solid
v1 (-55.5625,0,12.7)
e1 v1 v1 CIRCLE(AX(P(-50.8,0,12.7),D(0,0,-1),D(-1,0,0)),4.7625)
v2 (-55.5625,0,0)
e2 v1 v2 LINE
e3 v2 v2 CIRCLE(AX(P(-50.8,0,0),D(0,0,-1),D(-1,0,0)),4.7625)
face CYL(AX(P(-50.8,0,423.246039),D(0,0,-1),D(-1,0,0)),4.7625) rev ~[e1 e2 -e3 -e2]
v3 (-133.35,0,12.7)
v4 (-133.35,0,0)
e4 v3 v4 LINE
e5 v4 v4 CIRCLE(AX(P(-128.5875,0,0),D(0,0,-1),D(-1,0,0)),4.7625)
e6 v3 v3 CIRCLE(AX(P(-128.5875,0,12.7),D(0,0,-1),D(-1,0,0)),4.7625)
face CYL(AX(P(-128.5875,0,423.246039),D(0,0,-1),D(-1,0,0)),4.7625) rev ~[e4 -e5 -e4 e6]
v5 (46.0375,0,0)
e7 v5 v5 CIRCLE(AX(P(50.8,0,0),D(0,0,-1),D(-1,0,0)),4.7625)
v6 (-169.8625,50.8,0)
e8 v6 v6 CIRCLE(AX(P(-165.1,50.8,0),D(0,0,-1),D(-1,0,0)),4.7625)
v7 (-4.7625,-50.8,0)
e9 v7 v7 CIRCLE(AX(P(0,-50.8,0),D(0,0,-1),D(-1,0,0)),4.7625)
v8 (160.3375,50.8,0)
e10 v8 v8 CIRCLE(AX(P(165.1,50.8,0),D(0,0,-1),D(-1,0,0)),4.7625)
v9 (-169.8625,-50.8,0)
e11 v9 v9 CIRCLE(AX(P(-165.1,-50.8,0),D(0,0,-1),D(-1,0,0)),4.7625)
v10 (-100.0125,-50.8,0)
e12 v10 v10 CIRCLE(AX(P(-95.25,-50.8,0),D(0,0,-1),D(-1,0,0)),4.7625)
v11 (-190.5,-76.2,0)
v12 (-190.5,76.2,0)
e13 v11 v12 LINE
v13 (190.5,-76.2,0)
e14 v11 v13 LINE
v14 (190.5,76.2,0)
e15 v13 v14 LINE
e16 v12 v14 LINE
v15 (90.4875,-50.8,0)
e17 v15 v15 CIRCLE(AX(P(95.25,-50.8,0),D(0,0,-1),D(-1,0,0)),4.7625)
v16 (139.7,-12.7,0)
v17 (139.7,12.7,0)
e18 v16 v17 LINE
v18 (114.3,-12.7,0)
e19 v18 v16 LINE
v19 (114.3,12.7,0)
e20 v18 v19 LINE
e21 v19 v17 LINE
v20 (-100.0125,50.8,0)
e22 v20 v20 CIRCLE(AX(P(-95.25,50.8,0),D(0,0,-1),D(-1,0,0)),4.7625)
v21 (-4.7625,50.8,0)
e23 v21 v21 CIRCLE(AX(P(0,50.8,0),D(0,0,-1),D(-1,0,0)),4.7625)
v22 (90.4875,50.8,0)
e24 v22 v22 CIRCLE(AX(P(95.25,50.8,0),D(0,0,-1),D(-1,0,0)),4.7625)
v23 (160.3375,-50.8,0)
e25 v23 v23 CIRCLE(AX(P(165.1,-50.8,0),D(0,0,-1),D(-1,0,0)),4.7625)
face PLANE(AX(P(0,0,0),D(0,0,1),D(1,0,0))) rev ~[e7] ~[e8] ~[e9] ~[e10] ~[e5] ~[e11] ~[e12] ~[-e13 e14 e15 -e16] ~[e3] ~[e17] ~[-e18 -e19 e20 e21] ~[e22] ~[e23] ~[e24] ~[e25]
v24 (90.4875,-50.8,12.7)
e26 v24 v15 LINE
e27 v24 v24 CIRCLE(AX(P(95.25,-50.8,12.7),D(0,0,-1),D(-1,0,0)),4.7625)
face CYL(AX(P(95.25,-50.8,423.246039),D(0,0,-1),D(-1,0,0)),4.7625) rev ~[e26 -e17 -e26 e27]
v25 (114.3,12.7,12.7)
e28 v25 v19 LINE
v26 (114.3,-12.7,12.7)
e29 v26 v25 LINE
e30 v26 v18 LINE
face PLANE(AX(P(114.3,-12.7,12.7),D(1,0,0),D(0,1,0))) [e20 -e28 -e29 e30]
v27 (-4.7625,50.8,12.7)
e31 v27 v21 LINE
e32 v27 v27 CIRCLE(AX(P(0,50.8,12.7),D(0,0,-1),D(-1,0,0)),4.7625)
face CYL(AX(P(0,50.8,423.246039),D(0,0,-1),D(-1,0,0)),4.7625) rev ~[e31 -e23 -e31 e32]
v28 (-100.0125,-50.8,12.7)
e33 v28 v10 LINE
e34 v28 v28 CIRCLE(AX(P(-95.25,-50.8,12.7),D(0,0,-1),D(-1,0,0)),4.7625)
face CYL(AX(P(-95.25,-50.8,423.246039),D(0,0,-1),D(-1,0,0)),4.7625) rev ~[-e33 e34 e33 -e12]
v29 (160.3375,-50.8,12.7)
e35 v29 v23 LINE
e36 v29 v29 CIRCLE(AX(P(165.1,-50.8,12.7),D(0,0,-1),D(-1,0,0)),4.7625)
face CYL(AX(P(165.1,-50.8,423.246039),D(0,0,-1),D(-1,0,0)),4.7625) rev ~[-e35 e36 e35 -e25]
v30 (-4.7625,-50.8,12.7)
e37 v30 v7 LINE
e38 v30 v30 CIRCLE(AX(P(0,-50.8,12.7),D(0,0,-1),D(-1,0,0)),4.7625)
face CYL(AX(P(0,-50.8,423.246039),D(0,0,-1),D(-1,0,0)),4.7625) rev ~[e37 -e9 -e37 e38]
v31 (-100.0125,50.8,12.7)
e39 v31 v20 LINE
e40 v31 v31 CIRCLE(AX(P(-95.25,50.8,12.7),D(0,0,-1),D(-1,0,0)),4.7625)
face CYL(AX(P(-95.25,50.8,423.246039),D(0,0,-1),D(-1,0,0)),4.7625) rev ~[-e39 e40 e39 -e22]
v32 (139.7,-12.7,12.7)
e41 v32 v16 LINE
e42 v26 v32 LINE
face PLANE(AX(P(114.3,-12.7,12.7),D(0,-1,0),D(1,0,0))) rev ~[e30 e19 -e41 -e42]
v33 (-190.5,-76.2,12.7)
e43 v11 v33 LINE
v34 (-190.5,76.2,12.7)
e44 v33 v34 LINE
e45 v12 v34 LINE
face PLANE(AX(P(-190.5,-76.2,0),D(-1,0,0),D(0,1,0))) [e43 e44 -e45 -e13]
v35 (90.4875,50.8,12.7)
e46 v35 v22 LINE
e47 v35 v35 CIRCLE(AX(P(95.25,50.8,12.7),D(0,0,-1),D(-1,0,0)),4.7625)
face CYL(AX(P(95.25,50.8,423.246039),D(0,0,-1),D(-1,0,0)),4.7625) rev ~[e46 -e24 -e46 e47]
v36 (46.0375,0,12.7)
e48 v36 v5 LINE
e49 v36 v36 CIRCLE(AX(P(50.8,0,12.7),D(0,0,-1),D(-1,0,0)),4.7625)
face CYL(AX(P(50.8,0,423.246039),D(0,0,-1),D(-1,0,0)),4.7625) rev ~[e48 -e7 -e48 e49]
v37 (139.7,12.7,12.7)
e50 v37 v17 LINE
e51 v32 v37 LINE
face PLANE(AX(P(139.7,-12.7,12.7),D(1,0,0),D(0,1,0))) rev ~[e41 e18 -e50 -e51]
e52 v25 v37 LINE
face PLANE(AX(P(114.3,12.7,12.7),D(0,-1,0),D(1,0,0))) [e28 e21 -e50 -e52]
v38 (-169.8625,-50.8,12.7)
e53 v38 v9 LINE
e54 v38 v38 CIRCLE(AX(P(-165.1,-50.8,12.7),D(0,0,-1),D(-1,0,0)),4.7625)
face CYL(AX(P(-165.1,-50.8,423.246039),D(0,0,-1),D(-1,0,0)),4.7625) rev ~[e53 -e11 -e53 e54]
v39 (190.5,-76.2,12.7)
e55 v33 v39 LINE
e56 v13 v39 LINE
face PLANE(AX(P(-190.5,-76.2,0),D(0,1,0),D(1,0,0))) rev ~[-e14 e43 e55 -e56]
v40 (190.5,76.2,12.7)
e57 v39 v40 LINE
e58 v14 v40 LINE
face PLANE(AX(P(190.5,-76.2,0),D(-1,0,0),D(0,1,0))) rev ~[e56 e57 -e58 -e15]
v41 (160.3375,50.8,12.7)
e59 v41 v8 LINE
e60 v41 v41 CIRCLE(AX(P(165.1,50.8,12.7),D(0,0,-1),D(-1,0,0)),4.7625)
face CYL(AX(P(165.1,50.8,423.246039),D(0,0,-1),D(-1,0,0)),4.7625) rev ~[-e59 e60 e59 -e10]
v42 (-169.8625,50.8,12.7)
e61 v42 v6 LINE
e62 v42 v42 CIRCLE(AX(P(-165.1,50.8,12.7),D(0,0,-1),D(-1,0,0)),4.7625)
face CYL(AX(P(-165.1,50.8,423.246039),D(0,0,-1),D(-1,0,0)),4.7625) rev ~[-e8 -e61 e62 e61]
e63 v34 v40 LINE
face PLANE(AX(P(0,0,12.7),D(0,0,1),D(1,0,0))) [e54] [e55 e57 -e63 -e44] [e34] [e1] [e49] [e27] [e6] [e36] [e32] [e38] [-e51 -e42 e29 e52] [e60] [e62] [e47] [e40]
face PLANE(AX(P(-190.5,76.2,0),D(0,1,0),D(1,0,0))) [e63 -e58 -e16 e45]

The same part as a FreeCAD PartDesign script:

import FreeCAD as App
import Part
import Sketcher
Q = App.Units.Quantity


def add_polygon(sketch, points):
    """Adds a closed chain of lines whose ends are joined by coincident constraints."""
    first, n = sketch.GeometryCount, len(points)
    for a, b in zip(points, points[1:] + points[:1]):
        sketch.addGeometry(Part.LineSegment(App.Vector(*a, 0), App.Vector(*b, 0)), False)
    for i in range(n):
        sketch.addConstraint(Sketcher.Constraint("Coincident", first + i, 2, first + (i + 1) % n, 1))

doc = App.newDocument("Part")
body = doc.addObject("PartDesign::Body", "Body")

# Sketch on XY plane
sketch1 = body.newObject("Sketcher::SketchObject", "Sketch")
sketch1.AttachmentSupport = (doc.getObject("XY_Plane"), [""])
sketch1.MapMode = "FlatFace"
add_polygon(sketch1, [(-190.5, 76.2), (-190.5, -76.2), (190.5, -76.2), (190.5, 76.2)])  # lines 0-3
sketch1.addConstraint(Sketcher.Constraint("Vertical", 0))
sketch1.addConstraint(Sketcher.Constraint("Horizontal", 1))
sketch1.addConstraint(Sketcher.Constraint("Vertical", 2))
sketch1.addConstraint(Sketcher.Constraint("Horizontal", 3))
sketch1.addConstraint(Sketcher.Constraint("Symmetric", 0, 2, 2, 2, -1, 1))
sketch1.addConstraint(Sketcher.Constraint("DistanceX", 1, 1, 1, 2, Q("15 in")))
sketch1.addConstraint(Sketcher.Constraint("DistanceY", 0, 2, 0, 1, Q("6 in")))
pad1 = body.newObject("PartDesign::Pad", "Pad")
pad1.Profile = sketch1
pad1.Length = Q("0.5 in")

# Sketch on XY plane
sketch2 = body.newObject("Sketcher::SketchObject", "Sketch001")
sketch2.AttachmentSupport = (doc.getObject("XY_Plane"), [""])
sketch2.MapMode = "FlatFace"
sketch2.AttachmentOffset = App.Placement(App.Vector(0, 0, 0.5 * 25.4), App.Rotation())
sketch2.addGeometry(Part.Circle(App.Vector(-165.1, 50.8, 0), App.Vector(0, 0, 1), 4.7625), False)
sketch2.addConstraint(Sketcher.Constraint("Diameter", 0, Q("0.375 in")))
sketch2.addConstraint(Sketcher.Constraint("DistanceY", -1, 1, 0, 3, Q("2 in")))
sketch2.addConstraint(Sketcher.Constraint("DistanceX", 0, 3, -1, 1, Q("6.5 in")))
doc.recompute()
hole = body.newObject("PartDesign::Hole", "Hole")
hole.Profile = sketch2
hole.ThreadType = "None"
hole.Diameter = Q("0.375 in")
hole.DepthType = "ThroughAll"

# Sketch on XY plane
sketch3 = body.newObject("Sketcher::SketchObject", "Sketch002")
sketch3.AttachmentSupport = (doc.getObject("XY_Plane"), [""])
sketch3.MapMode = "FlatFace"
sketch3.AttachmentOffset = App.Placement(App.Vector(0, 0, 0.5 * 25.4), App.Rotation())
sketch3.addGeometry(Part.Circle(App.Vector(-95.25, 50.8, 0), App.Vector(0, 0, 1), 4.7625), False)
sketch3.addGeometry(Part.Circle(App.Vector(0, 50.8, 0), App.Vector(0, 0, 1), 4.7625), False)
sketch3.addGeometry(Part.Circle(App.Vector(95.25, 50.8, 0), App.Vector(0, 0, 1), 4.7625), False)
sketch3.addGeometry(Part.Circle(App.Vector(165.1, 50.8, 0), App.Vector(0, 0, 1), 4.7625), False)
sketch3.addGeometry(Part.Circle(App.Vector(128.5875, 0, 0), App.Vector(0, 0, 1), 4.7625), False)
sketch3.addGeometry(Part.Circle(App.Vector(50.8, 0, 0), App.Vector(0, 0, 1), 4.7625), False)
sketch3.addGeometry(Part.Circle(App.Vector(-50.8, 0, 0), App.Vector(0, 0, 1), 4.7625), False)
sketch3.addGeometry(Part.Circle(App.Vector(-128.5875, 0, 0), App.Vector(0, 0, 1), 4.7625), False)
sketch3.addGeometry(Part.Circle(App.Vector(-165.1, -50.8, 0), App.Vector(0, 0, 1), 4.7625), False)
sketch3.addGeometry(Part.Circle(App.Vector(-95.25, -50.8, 0), App.Vector(0, 0, 1), 4.7625), False)
sketch3.addGeometry(Part.Circle(App.Vector(0, -50.8, 0), App.Vector(0, 0, 1), 4.7625), False)
sketch3.addGeometry(Part.Circle(App.Vector(95.25, -50.8, 0), App.Vector(0, 0, 1), 4.7625), False)
sketch3.addGeometry(Part.Circle(App.Vector(165.1, -50.8, 0), App.Vector(0, 0, 1), 4.7625), False)
sketch3.addConstraint(Sketcher.Constraint("Equal", 0, 1))
sketch3.addConstraint(Sketcher.Constraint("Equal", 1, 2))
sketch3.addConstraint(Sketcher.Constraint("Equal", 2, 3))
sketch3.addConstraint(Sketcher.Constraint("Equal", 3, 4))
sketch3.addConstraint(Sketcher.Constraint("Equal", 4, 5))
sketch3.addConstraint(Sketcher.Constraint("Equal", 5, 6))
sketch3.addConstraint(Sketcher.Constraint("Equal", 6, 7))
sketch3.addConstraint(Sketcher.Constraint("Equal", 7, 8))
sketch3.addConstraint(Sketcher.Constraint("Equal", 8, 9))
sketch3.addConstraint(Sketcher.Constraint("Equal", 9, 10))
sketch3.addConstraint(Sketcher.Constraint("Equal", 10, 11))
sketch3.addConstraint(Sketcher.Constraint("Equal", 11, 12))
sketch3.addConstraint(Sketcher.Constraint("Symmetric", 5, 3, 6, 3, -1, 1))
sketch3.addConstraint(Sketcher.Constraint("Symmetric", 4, 3, 7, 3, -1, 1))
sketch3.addConstraint(Sketcher.Constraint("Symmetric", 3, 3, 8, 3, -1, 1))
sketch3.addConstraint(Sketcher.Constraint("Symmetric", 2, 3, 9, 3, -1, 1))
sketch3.addConstraint(Sketcher.Constraint("Symmetric", 1, 3, 10, 3, -1, 1))
sketch3.addConstraint(Sketcher.Constraint("Symmetric", 0, 3, 11, 3, -1, 1))
sketch3.addConstraint(Sketcher.Constraint("Symmetric", 0, 3, 2, 3, -2))
sketch3.addConstraint(Sketcher.Constraint("Symmetric", 8, 3, 12, 3, -2))
sketch3.addConstraint(Sketcher.Constraint("PointOnObject", 1, 3, -2))
sketch3.addConstraint(Sketcher.Constraint("PointOnObject", 4, 3, -1))
sketch3.addConstraint(Sketcher.Constraint("PointOnObject", 5, 3, -1))
sketch3.addConstraint(Sketcher.Constraint("Horizontal", 0, 3, 1, 3))
sketch3.addConstraint(Sketcher.Constraint("Horizontal", 2, 3, 3, 3))
sketch3.addConstraint(Sketcher.Constraint("Diameter", 0, Q("0.375 in")))
sketch3.addConstraint(Sketcher.Constraint("DistanceY", -1, 1, 0, 3, Q("2 in")))
sketch3.addConstraint(Sketcher.Constraint("DistanceX", -1, 1, 5, 3, Q("2 in")))
sketch3.addConstraint(Sketcher.Constraint("DistanceX", -1, 1, 3, 3, Q("6.5 in")))
sketch3.addConstraint(Sketcher.Constraint("DistanceX", 0, 3, 2, 3, Q("7.5 in")))
sketch3.addConstraint(Sketcher.Constraint("DistanceX", -1, 1, 4, 3, Q("5.0625 in")))
doc.recompute()
hole2 = body.newObject("PartDesign::Hole", "Hole001")
hole2.Profile = sketch3
hole2.ThreadType = "None"
hole2.Diameter = Q("0.375 in")
hole2.DepthType = "ThroughAll"

# Sketch on XY plane
sketch4 = body.newObject("Sketcher::SketchObject", "Sketch003")
sketch4.AttachmentSupport = (doc.getObject("XY_Plane"), [""])
sketch4.MapMode = "FlatFace"
sketch4.AttachmentOffset = App.Placement(App.Vector(0, 0, 0.5 * 25.4), App.Rotation())
add_polygon(sketch4, [(114.3, 12.7), (114.3, -12.7), (139.7, -12.7), (139.7, 12.7)])  # lines 0-3
sketch4.addConstraint(Sketcher.Constraint("Vertical", 0))
sketch4.addConstraint(Sketcher.Constraint("Horizontal", 1))
sketch4.addConstraint(Sketcher.Constraint("Vertical", 2))
sketch4.addConstraint(Sketcher.Constraint("Horizontal", 3))
sketch4.addConstraint(Sketcher.Constraint("Equal", 3, 0))
sketch4.addConstraint(Sketcher.Constraint("DistanceX", 1, 1, 1, 2, Q("1 in")))
sketch4.addConstraint(Sketcher.Constraint("DistanceX", -1, 1, 0, 2, Q("4.5 in")))
sketch4.addConstraint(Sketcher.Constraint("DistanceY", 0, 2, -1, 1, Q("0.5 in")))
pocket1 = body.newObject("PartDesign::Pocket", "Pocket")
pocket1.Profile = sketch4
pocket1.Length = Q("0.5 in")

doc.recompute()
